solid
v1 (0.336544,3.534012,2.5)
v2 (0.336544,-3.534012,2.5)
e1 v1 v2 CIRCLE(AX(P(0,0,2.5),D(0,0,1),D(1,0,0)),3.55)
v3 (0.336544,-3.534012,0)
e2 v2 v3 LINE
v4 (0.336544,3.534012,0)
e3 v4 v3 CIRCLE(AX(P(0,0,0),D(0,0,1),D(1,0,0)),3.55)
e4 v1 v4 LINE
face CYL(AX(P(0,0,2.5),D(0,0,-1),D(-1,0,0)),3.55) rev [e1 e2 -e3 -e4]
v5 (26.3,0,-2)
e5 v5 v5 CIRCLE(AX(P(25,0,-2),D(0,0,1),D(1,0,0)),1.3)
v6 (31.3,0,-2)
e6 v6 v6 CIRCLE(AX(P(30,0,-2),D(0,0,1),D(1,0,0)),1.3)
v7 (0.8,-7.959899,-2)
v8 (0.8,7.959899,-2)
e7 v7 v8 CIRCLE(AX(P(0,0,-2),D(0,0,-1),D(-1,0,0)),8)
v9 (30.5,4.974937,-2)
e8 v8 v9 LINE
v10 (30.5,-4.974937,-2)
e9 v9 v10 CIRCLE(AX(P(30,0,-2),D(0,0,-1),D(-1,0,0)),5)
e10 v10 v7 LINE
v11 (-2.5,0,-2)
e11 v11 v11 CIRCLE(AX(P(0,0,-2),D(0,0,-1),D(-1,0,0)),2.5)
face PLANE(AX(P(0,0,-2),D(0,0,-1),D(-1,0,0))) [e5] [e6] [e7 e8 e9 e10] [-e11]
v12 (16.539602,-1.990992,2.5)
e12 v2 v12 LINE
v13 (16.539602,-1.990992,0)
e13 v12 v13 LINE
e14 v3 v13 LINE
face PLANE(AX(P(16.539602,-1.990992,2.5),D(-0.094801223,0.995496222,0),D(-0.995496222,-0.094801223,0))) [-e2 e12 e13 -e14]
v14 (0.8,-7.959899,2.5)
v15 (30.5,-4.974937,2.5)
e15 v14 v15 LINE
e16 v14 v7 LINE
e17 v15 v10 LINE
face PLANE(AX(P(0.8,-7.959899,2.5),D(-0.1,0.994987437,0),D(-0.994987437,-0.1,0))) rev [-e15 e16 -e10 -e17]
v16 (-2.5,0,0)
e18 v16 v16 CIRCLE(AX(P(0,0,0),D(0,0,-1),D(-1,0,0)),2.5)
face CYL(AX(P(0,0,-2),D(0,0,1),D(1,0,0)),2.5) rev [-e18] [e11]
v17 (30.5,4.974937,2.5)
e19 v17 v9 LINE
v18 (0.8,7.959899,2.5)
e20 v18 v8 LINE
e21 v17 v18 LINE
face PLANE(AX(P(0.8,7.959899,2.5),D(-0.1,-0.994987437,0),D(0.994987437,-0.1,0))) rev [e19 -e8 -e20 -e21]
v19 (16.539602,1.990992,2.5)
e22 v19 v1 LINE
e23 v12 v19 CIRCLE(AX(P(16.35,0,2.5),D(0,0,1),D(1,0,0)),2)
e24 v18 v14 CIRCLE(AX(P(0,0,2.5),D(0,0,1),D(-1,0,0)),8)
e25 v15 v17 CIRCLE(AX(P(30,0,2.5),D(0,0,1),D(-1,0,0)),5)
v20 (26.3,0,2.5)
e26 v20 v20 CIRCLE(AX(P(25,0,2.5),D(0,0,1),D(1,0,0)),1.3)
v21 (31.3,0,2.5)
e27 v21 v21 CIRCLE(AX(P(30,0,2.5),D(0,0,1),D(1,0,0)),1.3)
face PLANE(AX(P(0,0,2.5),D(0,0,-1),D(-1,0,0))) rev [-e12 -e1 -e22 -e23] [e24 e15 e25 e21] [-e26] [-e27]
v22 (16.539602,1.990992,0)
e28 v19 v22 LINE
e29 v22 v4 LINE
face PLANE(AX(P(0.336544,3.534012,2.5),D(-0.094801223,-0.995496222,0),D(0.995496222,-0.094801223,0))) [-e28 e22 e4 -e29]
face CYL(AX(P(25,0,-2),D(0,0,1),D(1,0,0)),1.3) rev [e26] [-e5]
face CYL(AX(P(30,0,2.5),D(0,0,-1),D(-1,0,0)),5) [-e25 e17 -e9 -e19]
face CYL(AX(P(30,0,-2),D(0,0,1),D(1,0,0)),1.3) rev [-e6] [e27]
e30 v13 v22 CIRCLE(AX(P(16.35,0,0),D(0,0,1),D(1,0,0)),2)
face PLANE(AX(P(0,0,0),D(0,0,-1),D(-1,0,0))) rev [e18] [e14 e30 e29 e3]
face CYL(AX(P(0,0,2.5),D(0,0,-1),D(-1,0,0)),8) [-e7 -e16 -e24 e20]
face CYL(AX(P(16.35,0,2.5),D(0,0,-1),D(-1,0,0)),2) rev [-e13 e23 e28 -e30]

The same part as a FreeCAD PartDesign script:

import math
import FreeCAD as App
import Part
import Sketcher

V = App.Vector
Q = App.Units.Quantity

doc = App.newDocument("Part")
params = doc.addObject("Spreadsheet::Sheet", "Params")
for row, (alias, value) in enumerate([
    ("sketch1_radius", "8 mm"),
    ("sketch1_radius2", "5 mm"),
    ("sketch1_radius3", "2 mm"),
    ("sketch1_radius4", "3.55 mm"),
    ("pad1_length", "2.5 mm"),
    ("sketch2_diameter", "5 mm"),
    ("sketch2_radius", "8 mm"),
    ("sketch2_radius2", "5 mm"),
    ("pad2_length", "2 mm"),
    ("sketch3_diameter", "2.6 mm"),
], start=1):
    params.set(f"A{row}", alias)
    params.set(f"B{row}", "=" + value)
    params.setAlias(f"B{row}", alias)

body = doc.addObject("PartDesign::Body", "Body")

# Sketch on XY plane
sketch1 = body.newObject("Sketcher::SketchObject", "Sketch")
sketch1.AttachmentSupport = (doc.getObject("XY_Plane"), [""])
sketch1.MapMode = "FlatFace"
sketch1.addGeometry(Part.LineSegment(V(30.5, 5, 0), V(0.8, 8, 0)), False)
sketch1.addGeometry(Part.ArcOfCircle(Part.Circle(V(0, 0, 0), V(0, 0, 1), 8), math.radians(84), math.radians(276)), False)
sketch1.addGeometry(Part.LineSegment(V(0.8, -8, 0), V(30.5, -5, 0)), False)
sketch1.addGeometry(Part.ArcOfCircle(Part.Circle(V(30, 0, 0), V(0, 0, 1), 5), math.radians(-84), math.radians(84)), False)
sketch1.addGeometry(Part.LineSegment(V(0.3, 3.5, 0), V(16.5, 2, 0)), False)
sketch1.addGeometry(Part.ArcOfCircle(Part.Circle(V(16.4, 0, 0), V(0, 0, 1), 2), math.radians(-85), math.radians(85)), False)
sketch1.addGeometry(Part.LineSegment(V(16.5, -2, 0), V(0.3, -3.5, 0)), False)
sketch1.addGeometry(Part.ArcOfCircle(Part.Circle(V(0, 0, 0), V(0, 0, 1), 3.5), math.radians(85), math.radians(275)), False)
sketch1.addConstraint(Sketcher.Constraint("Tangent", 0, 2, 1, 1))
sketch1.addConstraint(Sketcher.Constraint("Tangent", 1, 2, 2, 1))
sketch1.addConstraint(Sketcher.Constraint("Tangent", 2, 2, 3, 1))
sketch1.addConstraint(Sketcher.Constraint("Tangent", 3, 2, 0, 1))
sketch1.addConstraint(Sketcher.Constraint("Tangent", 4, 2, 5, 2))
sketch1.addConstraint(Sketcher.Constraint("Tangent", 5, 1, 6, 1))
sketch1.addConstraint(Sketcher.Constraint("Tangent", 6, 2, 7, 2))
sketch1.addConstraint(Sketcher.Constraint("Tangent", 7, 1, 4, 1))
sketch1.addConstraint(Sketcher.Constraint("Coincident", 1, 3, -1, 1))
sketch1.addConstraint(Sketcher.Constraint("Coincident", 7, 3, -1, 1))
sketch1.addConstraint(Sketcher.Constraint("PointOnObject", 3, 3, -1))
sketch1.addConstraint(Sketcher.Constraint("PointOnObject", 5, 3, -1))
sketch1.addConstraint(Sketcher.Constraint("Radius", 1, Q("8 mm")))
sketch1.addConstraint(Sketcher.Constraint("Radius", 3, Q("5 mm")))
sketch1.addConstraint(Sketcher.Constraint("Radius", 5, Q("2 mm")))
sketch1.addConstraint(Sketcher.Constraint("Radius", 7, Q("3.55 mm")))
sketch1.addConstraint(Sketcher.Constraint("DistanceX", -1, 1, 3, 3, Q("30 mm")))
sketch1.addConstraint(Sketcher.Constraint("DistanceX", -1, 1, 5, 3, Q("16.35 mm")))
sketch1.setExpression("Constraints[12]", "Params.sketch1_radius")
sketch1.setExpression("Constraints[13]", "Params.sketch1_radius2")
sketch1.setExpression("Constraints[14]", "Params.sketch1_radius3")
sketch1.setExpression("Constraints[15]", "Params.sketch1_radius4")
pad1 = body.newObject("PartDesign::Pad", "Pad")
pad1.Profile = sketch1
pad1.setExpression("Length", "Params.pad1_length")

# Sketch on XY plane
sketch2 = body.newObject("Sketcher::SketchObject", "Sketch001")
sketch2.AttachmentSupport = (doc.getObject("XY_Plane"), [""])
sketch2.MapMode = "FlatFace"
sketch2.addGeometry(Part.LineSegment(V(30.5, -5, 0), V(0.8, -8, 0)), False)
sketch2.addGeometry(Part.ArcOfCircle(Part.Circle(V(0, 0, 0), V(0, 0, 1), 8), math.radians(84), math.radians(276)), False)
sketch2.addGeometry(Part.LineSegment(V(0.8, 8, 0), V(30.5, 5, 0)), False)
sketch2.addGeometry(Part.ArcOfCircle(Part.Circle(V(30, 0, 0), V(0, 0, 1), 5), math.radians(-84), math.radians(84)), False)
sketch2.addGeometry(Part.Circle(V(0, 0, 0), V(0, 0, 1), 2.5), False)
sketch2.addConstraint(Sketcher.Constraint("Tangent", 0, 2, 1, 2))
sketch2.addConstraint(Sketcher.Constraint("Tangent", 1, 1, 2, 1))
sketch2.addConstraint(Sketcher.Constraint("Tangent", 2, 2, 3, 2))
sketch2.addConstraint(Sketcher.Constraint("Tangent", 3, 1, 0, 1))
sketch2.addConstraint(Sketcher.Constraint("Coincident", 1, 3, -1, 1))
sketch2.addConstraint(Sketcher.Constraint("Coincident", 4, 3, -1, 1))
sketch2.addConstraint(Sketcher.Constraint("PointOnObject", 3, 3, -1))
sketch2.addConstraint(Sketcher.Constraint("Diameter", 4, Q("5 mm")))
sketch2.addConstraint(Sketcher.Constraint("Radius", 1, Q("8 mm")))
sketch2.addConstraint(Sketcher.Constraint("Radius", 3, Q("5 mm")))
sketch2.addConstraint(Sketcher.Constraint("DistanceX", -1, 1, 3, 3, Q("30 mm")))
sketch2.setExpression("Constraints[7]", "Params.sketch2_diameter")
sketch2.setExpression("Constraints[8]", "Params.sketch2_radius")
sketch2.setExpression("Constraints[9]", "Params.sketch2_radius2")
pad2 = body.newObject("PartDesign::Pad", "Pad001")
pad2.Profile = sketch2
pad2.setExpression("Length", "Params.pad2_length")
pad2.Reversed = True

# Sketch on XY plane
sketch3 = body.newObject("Sketcher::SketchObject", "Sketch002")
sketch3.AttachmentSupport = (doc.getObject("XY_Plane"), [""])
sketch3.MapMode = "FlatFace"
sketch3.AttachmentOffset = App.Placement(V(0, 0, 2.5), App.Rotation())
sketch3.addGeometry(Part.Circle(V(30, 0, 0), V(0, 0, 1), 1.3), False)
sketch3.addGeometry(Part.Circle(V(25, 0, 0), V(0, 0, 1), 1.3), False)
sketch3.addConstraint(Sketcher.Constraint("Equal", 0, 1))
sketch3.addConstraint(Sketcher.Constraint("PointOnObject", 0, 3, -1))
sketch3.addConstraint(Sketcher.Constraint("PointOnObject", 1, 3, -1))
sketch3.addConstraint(Sketcher.Constraint("Diameter", 0, Q("2.6 mm")))
sketch3.addConstraint(Sketcher.Constraint("DistanceX", -1, 1, 0, 3, Q("30 mm")))
sketch3.addConstraint(Sketcher.Constraint("DistanceX", -1, 1, 1, 3, Q("25 mm")))
sketch3.setExpression("Constraints[3]", "Params.sketch3_diameter")
pocket1 = body.newObject("PartDesign::Pocket", "Pocket")
pocket1.Profile = sketch3
pocket1.Type = "ThroughAll"

doc.recompute()
